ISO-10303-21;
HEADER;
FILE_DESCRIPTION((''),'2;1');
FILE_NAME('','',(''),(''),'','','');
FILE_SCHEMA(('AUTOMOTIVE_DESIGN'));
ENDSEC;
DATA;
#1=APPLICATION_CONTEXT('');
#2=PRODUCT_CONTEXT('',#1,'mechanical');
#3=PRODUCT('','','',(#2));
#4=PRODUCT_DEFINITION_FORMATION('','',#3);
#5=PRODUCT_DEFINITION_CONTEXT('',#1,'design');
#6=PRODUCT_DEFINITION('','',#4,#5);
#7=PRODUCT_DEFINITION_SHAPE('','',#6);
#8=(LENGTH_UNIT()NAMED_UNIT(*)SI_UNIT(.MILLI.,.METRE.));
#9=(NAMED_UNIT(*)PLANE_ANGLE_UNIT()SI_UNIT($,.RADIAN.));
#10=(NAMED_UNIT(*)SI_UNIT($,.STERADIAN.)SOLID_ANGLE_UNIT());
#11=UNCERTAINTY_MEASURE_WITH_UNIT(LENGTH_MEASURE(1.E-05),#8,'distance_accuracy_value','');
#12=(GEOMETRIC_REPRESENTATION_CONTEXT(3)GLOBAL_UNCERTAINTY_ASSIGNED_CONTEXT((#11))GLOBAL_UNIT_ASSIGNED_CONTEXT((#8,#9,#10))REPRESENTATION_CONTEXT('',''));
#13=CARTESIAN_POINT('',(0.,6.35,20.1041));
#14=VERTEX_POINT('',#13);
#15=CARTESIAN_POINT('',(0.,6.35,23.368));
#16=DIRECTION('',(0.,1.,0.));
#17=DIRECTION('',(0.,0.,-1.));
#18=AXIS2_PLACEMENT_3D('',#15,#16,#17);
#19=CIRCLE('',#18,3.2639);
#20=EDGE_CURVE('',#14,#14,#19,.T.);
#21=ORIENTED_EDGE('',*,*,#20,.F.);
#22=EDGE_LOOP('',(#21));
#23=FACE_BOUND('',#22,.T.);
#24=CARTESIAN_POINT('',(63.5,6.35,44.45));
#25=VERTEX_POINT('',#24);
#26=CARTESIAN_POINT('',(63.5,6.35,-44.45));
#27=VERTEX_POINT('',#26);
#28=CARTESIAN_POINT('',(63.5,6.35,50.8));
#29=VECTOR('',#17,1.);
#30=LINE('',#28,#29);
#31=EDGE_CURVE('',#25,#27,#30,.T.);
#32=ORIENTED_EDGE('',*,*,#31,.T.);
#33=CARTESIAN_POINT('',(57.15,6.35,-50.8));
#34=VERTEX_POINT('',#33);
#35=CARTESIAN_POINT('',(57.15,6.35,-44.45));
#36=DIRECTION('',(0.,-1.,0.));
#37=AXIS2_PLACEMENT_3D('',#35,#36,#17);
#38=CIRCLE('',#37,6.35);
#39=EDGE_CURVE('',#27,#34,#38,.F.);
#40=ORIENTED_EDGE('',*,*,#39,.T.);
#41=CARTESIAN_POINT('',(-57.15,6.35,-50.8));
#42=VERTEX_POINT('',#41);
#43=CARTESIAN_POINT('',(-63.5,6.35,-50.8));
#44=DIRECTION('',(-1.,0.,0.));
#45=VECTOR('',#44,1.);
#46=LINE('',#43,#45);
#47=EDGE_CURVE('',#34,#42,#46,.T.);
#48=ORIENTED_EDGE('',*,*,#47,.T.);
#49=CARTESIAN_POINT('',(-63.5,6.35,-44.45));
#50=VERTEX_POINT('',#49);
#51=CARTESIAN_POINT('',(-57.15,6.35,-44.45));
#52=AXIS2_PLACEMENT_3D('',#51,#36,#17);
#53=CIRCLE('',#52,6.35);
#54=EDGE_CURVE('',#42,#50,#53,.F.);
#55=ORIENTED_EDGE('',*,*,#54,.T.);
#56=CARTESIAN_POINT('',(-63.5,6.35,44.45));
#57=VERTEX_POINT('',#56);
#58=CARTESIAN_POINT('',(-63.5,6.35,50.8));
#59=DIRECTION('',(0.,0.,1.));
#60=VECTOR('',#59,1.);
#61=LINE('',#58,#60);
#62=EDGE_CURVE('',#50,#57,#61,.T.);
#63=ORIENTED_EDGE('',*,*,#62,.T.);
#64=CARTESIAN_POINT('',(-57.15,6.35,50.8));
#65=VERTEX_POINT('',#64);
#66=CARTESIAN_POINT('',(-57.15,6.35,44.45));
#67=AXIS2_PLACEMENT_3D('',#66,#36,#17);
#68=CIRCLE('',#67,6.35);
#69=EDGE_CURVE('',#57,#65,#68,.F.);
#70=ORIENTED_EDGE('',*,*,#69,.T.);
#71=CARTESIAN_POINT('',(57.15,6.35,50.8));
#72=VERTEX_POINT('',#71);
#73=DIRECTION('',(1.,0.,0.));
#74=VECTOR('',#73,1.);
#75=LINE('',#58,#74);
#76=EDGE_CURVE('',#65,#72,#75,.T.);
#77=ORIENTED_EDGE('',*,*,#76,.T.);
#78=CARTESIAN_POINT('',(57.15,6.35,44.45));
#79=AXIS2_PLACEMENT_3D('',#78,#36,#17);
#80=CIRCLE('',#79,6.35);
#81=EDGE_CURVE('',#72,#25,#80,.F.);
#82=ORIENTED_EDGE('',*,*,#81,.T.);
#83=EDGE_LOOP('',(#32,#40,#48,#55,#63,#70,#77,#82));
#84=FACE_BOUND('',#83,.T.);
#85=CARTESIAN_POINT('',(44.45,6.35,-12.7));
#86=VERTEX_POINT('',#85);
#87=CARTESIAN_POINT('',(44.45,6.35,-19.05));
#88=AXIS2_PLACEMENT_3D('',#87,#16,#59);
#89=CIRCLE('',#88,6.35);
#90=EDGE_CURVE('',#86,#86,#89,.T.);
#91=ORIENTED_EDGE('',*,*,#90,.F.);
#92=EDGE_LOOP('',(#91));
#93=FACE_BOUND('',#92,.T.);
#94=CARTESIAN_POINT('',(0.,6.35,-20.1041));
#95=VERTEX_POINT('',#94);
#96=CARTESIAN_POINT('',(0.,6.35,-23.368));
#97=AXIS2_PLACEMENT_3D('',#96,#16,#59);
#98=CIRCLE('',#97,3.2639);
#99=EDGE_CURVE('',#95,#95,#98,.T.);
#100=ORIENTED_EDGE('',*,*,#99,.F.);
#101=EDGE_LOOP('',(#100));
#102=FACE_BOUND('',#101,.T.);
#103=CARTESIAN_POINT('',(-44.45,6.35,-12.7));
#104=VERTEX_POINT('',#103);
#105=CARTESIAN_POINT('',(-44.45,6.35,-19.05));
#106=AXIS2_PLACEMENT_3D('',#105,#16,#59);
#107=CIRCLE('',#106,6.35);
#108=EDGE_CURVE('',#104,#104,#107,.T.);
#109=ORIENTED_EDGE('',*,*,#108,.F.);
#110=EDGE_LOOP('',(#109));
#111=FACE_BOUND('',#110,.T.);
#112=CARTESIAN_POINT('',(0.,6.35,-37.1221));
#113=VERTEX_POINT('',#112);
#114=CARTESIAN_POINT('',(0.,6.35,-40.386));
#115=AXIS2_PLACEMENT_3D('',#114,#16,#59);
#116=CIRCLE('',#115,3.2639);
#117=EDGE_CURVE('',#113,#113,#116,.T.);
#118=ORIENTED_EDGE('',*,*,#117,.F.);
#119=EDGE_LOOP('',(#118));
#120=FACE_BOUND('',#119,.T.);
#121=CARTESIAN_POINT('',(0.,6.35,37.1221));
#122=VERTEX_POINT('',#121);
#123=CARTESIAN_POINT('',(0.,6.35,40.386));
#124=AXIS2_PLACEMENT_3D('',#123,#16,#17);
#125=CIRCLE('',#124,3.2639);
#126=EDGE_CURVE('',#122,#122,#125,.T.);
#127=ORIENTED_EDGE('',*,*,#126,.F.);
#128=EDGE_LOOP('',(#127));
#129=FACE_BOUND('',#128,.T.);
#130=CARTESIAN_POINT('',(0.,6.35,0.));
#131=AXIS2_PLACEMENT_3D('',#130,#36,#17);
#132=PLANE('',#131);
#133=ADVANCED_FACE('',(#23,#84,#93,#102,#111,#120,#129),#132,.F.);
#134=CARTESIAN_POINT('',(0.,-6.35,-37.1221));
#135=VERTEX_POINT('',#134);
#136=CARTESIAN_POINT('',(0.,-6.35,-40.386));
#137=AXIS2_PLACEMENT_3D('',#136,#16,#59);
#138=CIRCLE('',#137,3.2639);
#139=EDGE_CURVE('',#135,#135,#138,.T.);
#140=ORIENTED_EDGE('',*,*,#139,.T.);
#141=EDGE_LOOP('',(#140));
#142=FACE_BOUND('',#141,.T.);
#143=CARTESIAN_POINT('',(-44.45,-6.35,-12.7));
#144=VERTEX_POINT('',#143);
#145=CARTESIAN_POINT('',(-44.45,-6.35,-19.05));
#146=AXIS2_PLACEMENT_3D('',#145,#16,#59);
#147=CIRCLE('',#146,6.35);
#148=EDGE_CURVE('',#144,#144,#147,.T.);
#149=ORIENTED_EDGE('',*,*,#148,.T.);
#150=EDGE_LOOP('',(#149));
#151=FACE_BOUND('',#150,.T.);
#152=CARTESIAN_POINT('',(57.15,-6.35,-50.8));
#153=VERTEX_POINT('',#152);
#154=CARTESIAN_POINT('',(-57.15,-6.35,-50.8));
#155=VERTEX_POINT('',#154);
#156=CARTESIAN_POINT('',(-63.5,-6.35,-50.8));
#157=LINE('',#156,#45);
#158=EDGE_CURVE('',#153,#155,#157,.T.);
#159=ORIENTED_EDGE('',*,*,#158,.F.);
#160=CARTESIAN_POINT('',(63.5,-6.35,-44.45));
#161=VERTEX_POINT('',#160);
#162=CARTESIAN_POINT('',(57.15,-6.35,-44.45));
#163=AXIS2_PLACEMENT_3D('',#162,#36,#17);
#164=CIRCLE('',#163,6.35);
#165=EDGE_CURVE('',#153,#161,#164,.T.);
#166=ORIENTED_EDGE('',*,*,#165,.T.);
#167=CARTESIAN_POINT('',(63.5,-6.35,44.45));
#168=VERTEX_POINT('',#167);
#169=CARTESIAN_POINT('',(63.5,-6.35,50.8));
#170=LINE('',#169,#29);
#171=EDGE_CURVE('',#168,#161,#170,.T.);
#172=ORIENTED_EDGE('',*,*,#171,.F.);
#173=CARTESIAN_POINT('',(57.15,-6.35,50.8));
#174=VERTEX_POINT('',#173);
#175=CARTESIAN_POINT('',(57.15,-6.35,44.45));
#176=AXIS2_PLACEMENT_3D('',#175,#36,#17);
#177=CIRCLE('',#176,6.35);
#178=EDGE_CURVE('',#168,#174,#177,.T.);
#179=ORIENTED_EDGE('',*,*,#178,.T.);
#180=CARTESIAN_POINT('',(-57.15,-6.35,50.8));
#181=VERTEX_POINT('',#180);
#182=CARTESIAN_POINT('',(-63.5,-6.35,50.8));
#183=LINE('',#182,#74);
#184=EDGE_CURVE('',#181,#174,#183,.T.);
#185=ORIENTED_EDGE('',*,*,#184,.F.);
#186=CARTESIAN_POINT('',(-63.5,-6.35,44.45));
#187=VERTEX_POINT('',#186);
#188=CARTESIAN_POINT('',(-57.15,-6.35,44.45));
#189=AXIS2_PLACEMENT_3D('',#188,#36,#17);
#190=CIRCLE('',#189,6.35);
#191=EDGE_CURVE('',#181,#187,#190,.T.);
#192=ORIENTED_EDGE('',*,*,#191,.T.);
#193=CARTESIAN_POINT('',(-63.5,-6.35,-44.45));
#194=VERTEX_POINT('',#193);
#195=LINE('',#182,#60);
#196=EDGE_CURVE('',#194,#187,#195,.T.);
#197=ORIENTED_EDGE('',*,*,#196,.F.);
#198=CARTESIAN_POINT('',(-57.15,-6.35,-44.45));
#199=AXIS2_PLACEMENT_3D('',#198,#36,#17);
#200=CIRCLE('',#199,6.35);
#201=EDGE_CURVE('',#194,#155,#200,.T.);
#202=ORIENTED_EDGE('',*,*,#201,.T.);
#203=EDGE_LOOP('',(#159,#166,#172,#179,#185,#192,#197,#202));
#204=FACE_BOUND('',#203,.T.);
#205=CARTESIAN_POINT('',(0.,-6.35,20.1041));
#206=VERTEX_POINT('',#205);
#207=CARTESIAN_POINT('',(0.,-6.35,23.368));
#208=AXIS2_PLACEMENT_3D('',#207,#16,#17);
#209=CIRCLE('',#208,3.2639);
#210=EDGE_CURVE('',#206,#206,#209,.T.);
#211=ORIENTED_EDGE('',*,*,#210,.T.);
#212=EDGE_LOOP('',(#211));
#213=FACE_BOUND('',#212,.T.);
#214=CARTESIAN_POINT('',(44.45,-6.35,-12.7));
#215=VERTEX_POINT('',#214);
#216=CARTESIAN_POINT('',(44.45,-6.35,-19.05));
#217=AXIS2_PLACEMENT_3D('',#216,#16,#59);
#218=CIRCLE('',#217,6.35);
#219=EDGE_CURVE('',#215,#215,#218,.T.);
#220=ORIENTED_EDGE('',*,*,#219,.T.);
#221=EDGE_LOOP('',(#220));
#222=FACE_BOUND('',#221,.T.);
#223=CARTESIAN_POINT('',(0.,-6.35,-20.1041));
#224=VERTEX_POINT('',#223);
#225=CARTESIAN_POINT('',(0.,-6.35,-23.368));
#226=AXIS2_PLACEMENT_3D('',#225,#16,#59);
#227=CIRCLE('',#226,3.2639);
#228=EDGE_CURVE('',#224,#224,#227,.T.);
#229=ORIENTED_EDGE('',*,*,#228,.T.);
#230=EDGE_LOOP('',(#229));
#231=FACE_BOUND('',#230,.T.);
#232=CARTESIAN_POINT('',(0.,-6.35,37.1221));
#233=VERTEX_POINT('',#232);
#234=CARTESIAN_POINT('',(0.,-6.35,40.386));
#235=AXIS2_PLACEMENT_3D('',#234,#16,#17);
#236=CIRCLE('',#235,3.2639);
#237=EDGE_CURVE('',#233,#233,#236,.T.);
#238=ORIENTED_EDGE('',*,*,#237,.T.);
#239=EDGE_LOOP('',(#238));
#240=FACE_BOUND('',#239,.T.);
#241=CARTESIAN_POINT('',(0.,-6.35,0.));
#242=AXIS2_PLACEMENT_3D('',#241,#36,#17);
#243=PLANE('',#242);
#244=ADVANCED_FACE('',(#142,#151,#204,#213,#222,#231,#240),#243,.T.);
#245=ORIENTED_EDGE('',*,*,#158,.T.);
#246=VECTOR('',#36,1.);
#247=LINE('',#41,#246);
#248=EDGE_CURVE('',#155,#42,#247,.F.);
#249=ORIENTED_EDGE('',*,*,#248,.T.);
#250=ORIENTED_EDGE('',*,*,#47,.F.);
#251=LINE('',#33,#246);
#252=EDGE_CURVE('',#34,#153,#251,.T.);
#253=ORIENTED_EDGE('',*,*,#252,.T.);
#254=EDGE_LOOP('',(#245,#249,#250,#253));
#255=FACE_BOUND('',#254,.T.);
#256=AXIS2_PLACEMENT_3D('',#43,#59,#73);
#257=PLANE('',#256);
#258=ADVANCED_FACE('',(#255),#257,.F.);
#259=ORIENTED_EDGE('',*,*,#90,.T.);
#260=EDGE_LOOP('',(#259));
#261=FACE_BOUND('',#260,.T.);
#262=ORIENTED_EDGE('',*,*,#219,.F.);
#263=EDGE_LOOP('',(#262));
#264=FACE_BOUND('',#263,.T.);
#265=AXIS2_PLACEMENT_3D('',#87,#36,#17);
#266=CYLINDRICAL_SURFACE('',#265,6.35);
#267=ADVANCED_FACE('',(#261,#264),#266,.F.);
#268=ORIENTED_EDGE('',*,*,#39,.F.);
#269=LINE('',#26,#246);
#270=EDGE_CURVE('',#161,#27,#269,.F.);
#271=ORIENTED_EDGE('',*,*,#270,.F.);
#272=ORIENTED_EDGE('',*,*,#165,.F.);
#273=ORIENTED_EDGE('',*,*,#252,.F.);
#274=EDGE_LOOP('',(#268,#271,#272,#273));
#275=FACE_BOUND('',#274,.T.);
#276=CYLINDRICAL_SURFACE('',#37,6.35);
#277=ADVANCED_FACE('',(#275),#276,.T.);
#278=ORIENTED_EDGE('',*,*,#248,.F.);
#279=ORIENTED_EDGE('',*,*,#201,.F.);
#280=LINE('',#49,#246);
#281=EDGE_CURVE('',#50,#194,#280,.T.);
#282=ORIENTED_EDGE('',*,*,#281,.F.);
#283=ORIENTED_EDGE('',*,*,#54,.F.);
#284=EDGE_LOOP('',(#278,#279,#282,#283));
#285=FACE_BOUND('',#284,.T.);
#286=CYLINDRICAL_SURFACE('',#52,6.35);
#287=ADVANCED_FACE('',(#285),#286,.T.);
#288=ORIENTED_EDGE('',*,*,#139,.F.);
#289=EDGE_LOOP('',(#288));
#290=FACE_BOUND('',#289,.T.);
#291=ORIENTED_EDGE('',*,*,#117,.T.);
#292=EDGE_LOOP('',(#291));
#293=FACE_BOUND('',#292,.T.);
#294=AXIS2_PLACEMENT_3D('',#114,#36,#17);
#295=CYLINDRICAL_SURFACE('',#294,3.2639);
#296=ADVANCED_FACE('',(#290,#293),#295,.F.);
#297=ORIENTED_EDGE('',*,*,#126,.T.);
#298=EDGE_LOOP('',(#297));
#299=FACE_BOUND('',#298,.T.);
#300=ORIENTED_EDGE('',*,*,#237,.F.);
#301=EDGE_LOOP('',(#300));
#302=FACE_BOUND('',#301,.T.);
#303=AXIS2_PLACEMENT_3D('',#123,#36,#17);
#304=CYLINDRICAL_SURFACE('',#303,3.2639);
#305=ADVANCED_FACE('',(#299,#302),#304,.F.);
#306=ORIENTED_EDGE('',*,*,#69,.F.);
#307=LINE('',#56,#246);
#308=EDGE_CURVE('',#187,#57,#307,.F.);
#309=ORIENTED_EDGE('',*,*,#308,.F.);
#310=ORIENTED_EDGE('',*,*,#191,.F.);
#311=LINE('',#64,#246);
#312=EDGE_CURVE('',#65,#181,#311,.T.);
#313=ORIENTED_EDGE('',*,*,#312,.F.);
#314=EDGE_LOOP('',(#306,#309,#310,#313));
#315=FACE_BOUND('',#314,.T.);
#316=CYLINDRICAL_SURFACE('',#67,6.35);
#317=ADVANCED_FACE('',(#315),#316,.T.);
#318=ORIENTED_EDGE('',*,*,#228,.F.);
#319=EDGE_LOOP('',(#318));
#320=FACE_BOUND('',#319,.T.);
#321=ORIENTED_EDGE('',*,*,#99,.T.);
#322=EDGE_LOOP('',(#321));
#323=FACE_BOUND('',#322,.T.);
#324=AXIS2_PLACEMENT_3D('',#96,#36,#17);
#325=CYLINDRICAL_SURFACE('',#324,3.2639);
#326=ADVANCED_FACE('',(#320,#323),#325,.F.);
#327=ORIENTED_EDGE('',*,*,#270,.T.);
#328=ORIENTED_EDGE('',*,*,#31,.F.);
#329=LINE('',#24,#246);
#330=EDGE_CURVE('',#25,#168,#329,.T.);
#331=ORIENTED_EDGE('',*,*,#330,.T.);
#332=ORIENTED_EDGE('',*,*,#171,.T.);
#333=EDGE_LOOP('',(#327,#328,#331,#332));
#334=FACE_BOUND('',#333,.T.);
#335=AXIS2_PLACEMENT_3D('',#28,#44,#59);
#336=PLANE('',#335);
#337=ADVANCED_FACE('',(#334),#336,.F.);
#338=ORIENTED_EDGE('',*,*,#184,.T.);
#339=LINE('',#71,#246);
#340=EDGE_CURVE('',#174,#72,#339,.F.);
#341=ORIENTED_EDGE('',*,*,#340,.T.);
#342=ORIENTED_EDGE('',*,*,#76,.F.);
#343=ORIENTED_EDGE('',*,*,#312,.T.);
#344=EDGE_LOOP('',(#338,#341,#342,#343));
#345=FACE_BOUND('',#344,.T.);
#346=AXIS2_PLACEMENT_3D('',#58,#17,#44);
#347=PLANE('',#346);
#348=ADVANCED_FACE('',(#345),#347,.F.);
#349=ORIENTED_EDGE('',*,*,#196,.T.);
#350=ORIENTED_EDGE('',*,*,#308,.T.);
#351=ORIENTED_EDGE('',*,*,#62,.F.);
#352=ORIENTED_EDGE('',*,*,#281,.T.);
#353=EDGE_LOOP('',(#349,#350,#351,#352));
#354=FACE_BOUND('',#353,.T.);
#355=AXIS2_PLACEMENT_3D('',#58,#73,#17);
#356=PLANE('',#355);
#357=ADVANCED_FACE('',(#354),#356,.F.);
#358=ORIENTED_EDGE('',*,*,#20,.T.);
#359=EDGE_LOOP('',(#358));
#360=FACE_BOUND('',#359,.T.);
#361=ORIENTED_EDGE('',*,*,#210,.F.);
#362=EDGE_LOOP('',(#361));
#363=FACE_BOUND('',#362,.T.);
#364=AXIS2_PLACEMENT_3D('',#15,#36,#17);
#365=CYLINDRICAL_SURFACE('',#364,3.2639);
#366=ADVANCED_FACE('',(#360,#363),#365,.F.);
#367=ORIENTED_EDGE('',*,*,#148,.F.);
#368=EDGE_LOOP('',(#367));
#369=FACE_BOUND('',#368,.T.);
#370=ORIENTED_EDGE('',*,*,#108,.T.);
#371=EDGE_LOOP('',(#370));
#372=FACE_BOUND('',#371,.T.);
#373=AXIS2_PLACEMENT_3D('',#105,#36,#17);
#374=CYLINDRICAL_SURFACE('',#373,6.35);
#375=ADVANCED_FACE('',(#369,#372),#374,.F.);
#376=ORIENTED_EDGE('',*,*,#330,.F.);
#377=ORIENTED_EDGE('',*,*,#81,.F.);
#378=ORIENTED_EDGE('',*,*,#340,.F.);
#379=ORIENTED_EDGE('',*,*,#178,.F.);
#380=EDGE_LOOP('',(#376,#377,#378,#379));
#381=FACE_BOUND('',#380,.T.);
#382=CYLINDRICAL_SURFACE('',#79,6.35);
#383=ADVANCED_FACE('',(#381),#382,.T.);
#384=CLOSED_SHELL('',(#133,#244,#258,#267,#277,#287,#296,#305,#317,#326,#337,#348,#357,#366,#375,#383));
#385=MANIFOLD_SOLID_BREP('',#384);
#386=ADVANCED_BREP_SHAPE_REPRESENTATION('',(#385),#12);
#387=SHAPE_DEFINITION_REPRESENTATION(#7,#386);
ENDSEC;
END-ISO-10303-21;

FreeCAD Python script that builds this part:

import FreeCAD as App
import Part
import Sketcher
from FreeCAD import Vector
Q = App.Units.Quantity


def edges_at(feature, points):
    """Names of the edges that pass closest to the given points."""
    edges = feature.Shape.Edges
    near = lambda p: min(range(len(edges)), key=lambda i: edges[i].distToShape(Part.Vertex(*p))[0])
    return sorted({f"Edge{near(p) + 1}" for p in points})


def add_polygon(sketch, points):
    """Adds a closed chain of lines whose ends are joined by coincident constraints."""
    first, n = sketch.GeometryCount, len(points)
    for a, b in zip(points, points[1:] + points[:1]):
        sketch.addGeometry(Part.LineSegment(App.Vector(*a, 0), App.Vector(*b, 0)), False)
    for i in range(n):
        sketch.addConstraint(Sketcher.Constraint("Coincident", first + i, 2, first + (i + 1) % n, 1))

doc = App.newDocument("Part")
params = doc.addObject("Spreadsheet::Sheet", "Params")
for row, (alias, value) in enumerate([
    ("sketch1_diameter", "0.5 in"),
    ("sketch1_width", "5 in"),
    ("sketch1_height", "4 in"),
    ("sketch1_diameter2", "0.257 in"),
    ("pad1_length", "0.5 in"),
    ("fillet_radius", "0.25 in"),
], start=1):
    params.set(f"A{row}", alias)
    params.set(f"B{row}", "=" + value)
    params.setAlias(f"B{row}", alias)

body = doc.addObject("PartDesign::Body", "Body")

sketch1 = body.newObject("Sketcher::SketchObject", "Sketch")
sketch1.AttachmentSupport = (doc.getObject("XZ_Plane"), [""])
sketch1.MapMode = "FlatFace"
add_polygon(sketch1, [(-63.5, -50.8), (-63.5, 50.8), (63.5, 50.8), (63.5, -50.8)])
sketch1.addGeometry(Part.Circle(Vector(0, 40.4, 0), Vector(0, 0, 1), 3.3), False)
sketch1.addGeometry(Part.Circle(Vector(0, 23.4, 0), Vector(0, 0, 1), 3.3), False)
sketch1.addGeometry(Part.Circle(Vector(-44.5, -19.1, 0), Vector(0, 0, 1), 6.3), False)
sketch1.addGeometry(Part.Circle(Vector(44.5, -19.1, 0), Vector(0, 0, 1), 6.3), False)
sketch1.addGeometry(Part.Circle(Vector(0, -23.4, 0), Vector(0, 0, 1), 3.3), False)
sketch1.addGeometry(Part.Circle(Vector(0, -40.4, 0), Vector(0, 0, 1), 3.3), False)
sketch1.addConstraint([
    Sketcher.Constraint("Vertical", 0),
    Sketcher.Constraint("Horizontal", 1),
    Sketcher.Constraint("Vertical", 2),
    Sketcher.Constraint("Horizontal", 3),
    Sketcher.Constraint("Equal", 4, 5),
    Sketcher.Constraint("Equal", 6, 7),
    Sketcher.Constraint("Equal", 5, 8),
    Sketcher.Constraint("Equal", 8, 9),
    Sketcher.Constraint("Symmetric", 5, 3, 8, 3, -1, 1),
    Sketcher.Constraint("Symmetric", 4, 3, 9, 3, -1, 1),
    Sketcher.Constraint("Symmetric", 0, 2, 2, 2, -1, 1),
    Sketcher.Constraint("Symmetric", 6, 3, 7, 3, -2),
    Sketcher.Constraint("PointOnObject", 4, 3, -2),
    Sketcher.Constraint("PointOnObject", 5, 3, -2),
    Sketcher.Constraint("Diameter", 6, Q("0.5 in")),
    Sketcher.Constraint("DistanceX", 1, 1, 1, 2, Q("5 in")),
    Sketcher.Constraint("DistanceY", 0, 1, 0, 2, Q("4 in")),
    Sketcher.Constraint("Diameter", 4, Q("0.257 in")),
    Sketcher.Constraint("DistanceX", 6, 3, 7, 3, Q("3.5 in")),
    Sketcher.Constraint("DistanceY", -1, 1, 4, 3, Q("1.59 in")),
    Sketcher.Constraint("DistanceY", -1, 1, 5, 3, Q("0.92 in")),
    Sketcher.Constraint("DistanceY", 6, 3, -1, 1, Q("0.75 in")),
])
sketch1.setExpression("Constraints[18]", "Params.sketch1_diameter")
sketch1.setExpression("Constraints[19]", "Params.sketch1_width")
sketch1.setExpression("Constraints[20]", "Params.sketch1_height")
sketch1.setExpression("Constraints[21]", "Params.sketch1_diameter2")
pad1 = body.newObject("PartDesign::Pad", "Pad")
pad1.Profile = sketch1
pad1.setExpression("Length", "Params.pad1_length")
pad1.Midplane = True
doc.recompute()

fillet = body.newObject("PartDesign::Fillet", "Fillet")
fillet.Base = (pad1, edges_at(pad1, [
    (63.5, 0, 50.8),
    (-63.5, 0, 50.8),
    (-63.5, 0, -50.8),
    (63.5, 0, -50.8),
]))
fillet.setExpression("Radius", "Params.fillet_radius")

doc.recompute()
